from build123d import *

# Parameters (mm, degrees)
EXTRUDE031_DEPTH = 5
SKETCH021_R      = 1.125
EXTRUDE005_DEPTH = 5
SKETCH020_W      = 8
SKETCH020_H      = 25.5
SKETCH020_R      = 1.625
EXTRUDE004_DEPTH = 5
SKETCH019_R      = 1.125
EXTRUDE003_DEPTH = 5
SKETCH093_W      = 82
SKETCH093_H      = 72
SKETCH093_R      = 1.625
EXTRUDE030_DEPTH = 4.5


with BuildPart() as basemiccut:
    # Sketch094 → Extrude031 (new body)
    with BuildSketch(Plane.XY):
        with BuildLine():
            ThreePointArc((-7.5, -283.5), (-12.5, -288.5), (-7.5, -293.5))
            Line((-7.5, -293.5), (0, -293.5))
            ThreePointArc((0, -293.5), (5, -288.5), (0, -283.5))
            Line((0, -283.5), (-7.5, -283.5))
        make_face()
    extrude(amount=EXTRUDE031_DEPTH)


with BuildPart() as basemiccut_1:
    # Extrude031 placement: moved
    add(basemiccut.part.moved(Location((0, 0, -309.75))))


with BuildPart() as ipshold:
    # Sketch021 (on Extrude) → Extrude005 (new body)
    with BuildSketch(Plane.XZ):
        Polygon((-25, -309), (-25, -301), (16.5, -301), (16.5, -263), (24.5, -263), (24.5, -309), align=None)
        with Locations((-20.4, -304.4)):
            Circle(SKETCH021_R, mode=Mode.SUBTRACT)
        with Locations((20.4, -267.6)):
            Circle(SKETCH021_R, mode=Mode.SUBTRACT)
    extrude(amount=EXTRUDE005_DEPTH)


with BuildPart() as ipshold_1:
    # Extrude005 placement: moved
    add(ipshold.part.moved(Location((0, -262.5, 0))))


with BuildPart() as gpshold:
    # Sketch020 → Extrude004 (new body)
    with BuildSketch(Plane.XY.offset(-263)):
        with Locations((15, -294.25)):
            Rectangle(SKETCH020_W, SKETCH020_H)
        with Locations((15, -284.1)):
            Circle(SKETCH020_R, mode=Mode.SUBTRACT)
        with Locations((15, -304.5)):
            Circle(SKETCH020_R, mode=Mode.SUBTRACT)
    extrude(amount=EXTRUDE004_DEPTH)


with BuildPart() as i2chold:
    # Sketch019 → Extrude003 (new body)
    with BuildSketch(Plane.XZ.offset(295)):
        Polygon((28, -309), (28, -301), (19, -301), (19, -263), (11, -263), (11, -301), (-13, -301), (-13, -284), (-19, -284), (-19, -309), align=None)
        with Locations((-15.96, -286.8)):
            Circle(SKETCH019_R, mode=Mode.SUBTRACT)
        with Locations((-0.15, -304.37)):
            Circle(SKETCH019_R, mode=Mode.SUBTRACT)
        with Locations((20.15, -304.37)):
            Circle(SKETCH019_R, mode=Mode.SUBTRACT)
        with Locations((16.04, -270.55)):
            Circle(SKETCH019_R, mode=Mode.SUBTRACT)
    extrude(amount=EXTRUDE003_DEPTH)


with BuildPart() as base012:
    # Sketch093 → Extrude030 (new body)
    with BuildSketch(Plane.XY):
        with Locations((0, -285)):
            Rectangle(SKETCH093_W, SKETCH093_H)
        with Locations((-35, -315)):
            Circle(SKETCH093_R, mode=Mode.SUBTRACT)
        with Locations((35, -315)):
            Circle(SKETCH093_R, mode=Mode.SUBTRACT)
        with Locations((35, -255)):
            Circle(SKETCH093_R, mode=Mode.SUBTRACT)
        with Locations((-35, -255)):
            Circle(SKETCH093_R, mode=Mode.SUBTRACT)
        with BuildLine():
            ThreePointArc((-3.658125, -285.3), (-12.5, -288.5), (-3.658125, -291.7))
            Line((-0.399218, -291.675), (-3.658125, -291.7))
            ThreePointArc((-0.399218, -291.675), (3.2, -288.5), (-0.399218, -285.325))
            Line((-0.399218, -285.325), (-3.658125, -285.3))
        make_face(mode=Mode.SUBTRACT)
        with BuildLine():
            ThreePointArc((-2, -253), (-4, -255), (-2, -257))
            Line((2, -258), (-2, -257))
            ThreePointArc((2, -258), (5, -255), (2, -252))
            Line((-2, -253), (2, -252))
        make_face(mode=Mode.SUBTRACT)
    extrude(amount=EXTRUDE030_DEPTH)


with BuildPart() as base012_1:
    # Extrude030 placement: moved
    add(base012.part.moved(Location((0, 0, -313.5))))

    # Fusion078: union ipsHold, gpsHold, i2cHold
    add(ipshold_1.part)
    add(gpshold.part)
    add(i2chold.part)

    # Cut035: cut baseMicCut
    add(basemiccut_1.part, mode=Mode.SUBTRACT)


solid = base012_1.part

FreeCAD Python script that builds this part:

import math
import FreeCAD as App
import Part
import Sketcher
from FreeCAD import Vector

doc = App.newDocument("Part")
body = doc.addObject("PartDesign::Body", "Body")

sketch1 = doc.addObject("Sketcher::SketchObject", "Sketch")
body.addObject(sketch1)
sketch1.AttachmentSupport = (doc.XY_Plane, [""])
sketch1.MapMode = "FlatFace"
sketch1.addGeometry([
    Part.ArcOfCircle(Part.Circle(Vector(-7.5, -288.5, 0), Vector(0, 0, 1), 5), math.radians(90), math.radians(270)),
    Part.LineSegment(Vector(-7.5, -293.5, 0), Vector(0, -293.5, 0)),
    Part.ArcOfCircle(Part.Circle(Vector(0, -288.5, 0), Vector(0, 0, 1), 5), math.radians(-90), math.radians(90)),
    Part.LineSegment(Vector(0, -283.5, 0), Vector(-7.5, -283.5, 0)),
], False)
sketch1.addConstraint([
    Sketcher.Constraint("Tangent", 0, 2, 1, 1),
    Sketcher.Constraint("Tangent", 1, 2, 2, 1),
    Sketcher.Constraint("Tangent", 2, 2, 3, 1),
    Sketcher.Constraint("Tangent", 3, 2, 0, 1),
    Sketcher.Constraint("Horizontal", 1),
    Sketcher.Constraint("Horizontal", 3),
    Sketcher.Constraint("PointOnObject", 2, 3, -2),
    Sketcher.Constraint("Radius", 0, 5.0),
    Sketcher.Constraint("DistanceX", 1, 1, 1, 2, 7.5),
    Sketcher.Constraint("DistanceY", 0, 3, -1, 1, 288.5),
])
pad1 = doc.addObject("PartDesign::Pad", "Pad")
body.addObject(pad1)
pad1.Profile = sketch1
pad1.Length = 5
body2 = doc.addObject("PartDesign::Body", "Body001")
doc.recompute()

body.Placement = App.Placement(Vector(0, 0, -309.75), App.Rotation(Vector(0, 0, 1), 0))
boolean = doc.addObject("PartDesign::Boolean", "Boolean")
body2.addObject(boolean)
boolean.Type = "Fuse"
boolean.addObjects([body])
body3 = doc.addObject("PartDesign::Body", "Body002")

sketch2 = doc.addObject("Sketcher::SketchObject", "Sketch001")
body3.addObject(sketch2)
sketch2.AttachmentSupport = (doc.getObject("XZ_Plane002"), [""])
sketch2.MapMode = "FlatFace"
sketch2.addGeometry([
    Part.LineSegment(Vector(-25, -301, 0), Vector(-25, -309, 0)),
    Part.LineSegment(Vector(-25, -309, 0), Vector(24.5, -309, 0)),
    Part.LineSegment(Vector(24.5, -309, 0), Vector(24.5, -263, 0)),
    Part.LineSegment(Vector(24.5, -263, 0), Vector(16.5, -263, 0)),
    Part.LineSegment(Vector(16.5, -263, 0), Vector(16.5, -301, 0)),
    Part.LineSegment(Vector(16.5, -301, 0), Vector(-25, -301, 0)),
    Part.Circle(Vector(-20.4, -304.4, 0), Vector(0, 0, 1), 1.125),
    Part.Circle(Vector(20.4, -267.6, 0), Vector(0, 0, 1), 1.125),
], False)
sketch2.addConstraint([
    Sketcher.Constraint("Coincident", 0, 2, 1, 1),
    Sketcher.Constraint("Coincident", 1, 2, 2, 1),
    Sketcher.Constraint("Coincident", 2, 2, 3, 1),
    Sketcher.Constraint("Coincident", 3, 2, 4, 1),
    Sketcher.Constraint("Coincident", 4, 2, 5, 1),
    Sketcher.Constraint("Coincident", 5, 2, 0, 1),
    Sketcher.Constraint("Vertical", 0),
    Sketcher.Constraint("Horizontal", 1),
    Sketcher.Constraint("Vertical", 2),
    Sketcher.Constraint("Horizontal", 3),
    Sketcher.Constraint("Vertical", 4),
    Sketcher.Constraint("Horizontal", 5),
    Sketcher.Constraint("Equal", 6, 7),
    Sketcher.Constraint("Equal", 3, 0),
    Sketcher.Constraint("Diameter", 6, 2.25),
    Sketcher.Constraint("DistanceX", 3, 2, 3, 1, 8.0),
    Sketcher.Constraint("DistanceY", 2, 1, 2, 2, 46.0),
    Sketcher.Constraint("DistanceX", 1, 1, 1, 2, 49.5),
    Sketcher.Constraint("DistanceX", 0, 2, -1, 1, 25.0),
    Sketcher.Constraint("DistanceY", 0, 2, -1, 1, 309.0),
    Sketcher.Constraint("DistanceX", 6, 3, -1, 1, 20.4),
    Sketcher.Constraint("DistanceY", 6, 3, -1, 1, 304.4),
    Sketcher.Constraint("DistanceX", -1, 1, 7, 3, 20.4),
    Sketcher.Constraint("DistanceY", 7, 3, -1, 1, 267.6),
])
pad2 = doc.addObject("PartDesign::Pad", "Pad001")
body3.addObject(pad2)
pad2.Profile = sketch2
pad2.Length = 5
body4 = doc.addObject("PartDesign::Body", "Body003")
doc.recompute()

body3.Placement = App.Placement(Vector(0, -262.5, 0), App.Rotation(Vector(0, 0, 1), 0))
boolean2 = doc.addObject("PartDesign::Boolean", "Boolean001")
body4.addObject(boolean2)
boolean2.Type = "Fuse"
boolean2.addObjects([body3])
body5 = doc.addObject("PartDesign::Body", "Body004")

sketch3 = doc.addObject("Sketcher::SketchObject", "Sketch002")
body5.addObject(sketch3)
sketch3.AttachmentSupport = (doc.getObject("XY_Plane004"), [""])
sketch3.MapMode = "FlatFace"
sketch3.AttachmentOffset = App.Placement(Vector(0, 0, -263), App.Rotation())
sketch3.addGeometry([
    Part.LineSegment(Vector(11, -281.5, 0), Vector(11, -307, 0)),
    Part.LineSegment(Vector(11, -307, 0), Vector(19, -307, 0)),
    Part.LineSegment(Vector(19, -307, 0), Vector(19, -281.5, 0)),
    Part.LineSegment(Vector(19, -281.5, 0), Vector(11, -281.5, 0)),
    Part.Circle(Vector(15, -304.5, 0), Vector(0, 0, 1), 1.625),
    Part.Circle(Vector(15, -284.1, 0), Vector(0, 0, 1), 1.625),
], False)
sketch3.addConstraint([
    Sketcher.Constraint("Coincident", 0, 2, 1, 1),
    Sketcher.Constraint("Coincident", 1, 2, 2, 1),
    Sketcher.Constraint("Coincident", 2, 2, 3, 1),
    Sketcher.Constraint("Coincident", 3, 2, 0, 1),
    Sketcher.Constraint("Vertical", 0),
    Sketcher.Constraint("Horizontal", 1),
    Sketcher.Constraint("Vertical", 2),
    Sketcher.Constraint("Horizontal", 3),
    Sketcher.Constraint("Equal", 4, 5),
    Sketcher.Constraint("Vertical", 4, 3, 5, 3),
    Sketcher.Constraint("Diameter", 4, 3.25),
    Sketcher.Constraint("DistanceX", 1, 1, 1, 2, 8.0),
    Sketcher.Constraint("DistanceY", 0, 2, 0, 1, 25.5),
    Sketcher.Constraint("DistanceX", -1, 1, 4, 3, 15.0),
    Sketcher.Constraint("DistanceX", -1, 1, 0, 2, 11.0),
    Sketcher.Constraint("DistanceY", 0, 2, -1, 1, 307.0),
    Sketcher.Constraint("DistanceY", 4, 3, 2, 2, 23.0),
    Sketcher.Constraint("DistanceY", 5, 3, -1, 1, 284.1),
])
pad3 = doc.addObject("PartDesign::Pad", "Pad002")
body5.addObject(pad3)
pad3.Profile = sketch3
pad3.Length = 5
body6 = doc.addObject("PartDesign::Body", "Body005")

sketch4 = doc.addObject("Sketcher::SketchObject", "Sketch003")
body6.addObject(sketch4)
sketch4.AttachmentSupport = (doc.getObject("XZ_Plane005"), [""])
sketch4.MapMode = "FlatFace"
sketch4.AttachmentOffset = App.Placement(Vector(0, 0, 295), App.Rotation())
sketch4.addGeometry([
    Part.LineSegment(Vector(28, -309, 0), Vector(28, -301, 0)),
    Part.LineSegment(Vector(28, -301, 0), Vector(19, -301, 0)),
    Part.LineSegment(Vector(19, -301, 0), Vector(19, -263, 0)),
    Part.LineSegment(Vector(19, -263, 0), Vector(11, -263, 0)),
    Part.LineSegment(Vector(11, -263, 0), Vector(11, -301, 0)),
    Part.LineSegment(Vector(11, -301, 0), Vector(-13, -301, 0)),
    Part.LineSegment(Vector(-13, -301, 0), Vector(-13, -284, 0)),
    Part.LineSegment(Vector(-13, -284, 0), Vector(-19, -284, 0)),
    Part.LineSegment(Vector(-19, -284, 0), Vector(-19, -309, 0)),
    Part.LineSegment(Vector(-19, -309, 0), Vector(28, -309, 0)),
    Part.Circle(Vector(-0.15, -304.37, 0), Vector(0, 0, 1), 1.125),
    Part.Circle(Vector(20.15, -304.37, 0), Vector(0, 0, 1), 1.125),
    Part.Circle(Vector(-15.96, -286.8, 0), Vector(0, 0, 1), 1.125),
    Part.Circle(Vector(16.04, -270.55, 0), Vector(0, 0, 1), 1.125),
], False)
sketch4.addConstraint([
    Sketcher.Constraint("Coincident", 0, 2, 1, 1),
    Sketcher.Constraint("Coincident", 1, 2, 2, 1),
    Sketcher.Constraint("Coincident", 2, 2, 3, 1),
    Sketcher.Constraint("Coincident", 3, 2, 4, 1),
    Sketcher.Constraint("Coincident", 4, 2, 5, 1),
    Sketcher.Constraint("Coincident", 5, 2, 6, 1),
    Sketcher.Constraint("Coincident", 6, 2, 7, 1),
    Sketcher.Constraint("Coincident", 7, 2, 8, 1),
    Sketcher.Constraint("Coincident", 8, 2, 9, 1),
    Sketcher.Constraint("Coincident", 9, 2, 0, 1),
    Sketcher.Constraint("Vertical", 0),
    Sketcher.Constraint("Horizontal", 1),
    Sketcher.Constraint("Vertical", 2),
    Sketcher.Constraint("Horizontal", 3),
    Sketcher.Constraint("Vertical", 4),
    Sketcher.Constraint("Horizontal", 5),
    Sketcher.Constraint("Vertical", 6),
    Sketcher.Constraint("Horizontal", 7),
    Sketcher.Constraint("Vertical", 8),
    Sketcher.Constraint("Horizontal", 9),
    Sketcher.Constraint("Equal", 10, 11),
    Sketcher.Constraint("Equal", 11, 12),
    Sketcher.Constraint("Equal", 12, 13),
    Sketcher.Constraint("Horizontal", 10, 3, 11, 3),
    Sketcher.Constraint("Horizontal", 1, 2, 4, 2),
    Sketcher.Constraint("Equal", 3, 0),
    Sketcher.Constraint("Diameter", 10, 2.25),
    Sketcher.Constraint("DistanceX", 1, 2, 1, 1, 9.0),
    Sketcher.Constraint("DistanceX", 3, 2, 3, 1, 8.0),
    Sketcher.Constraint("DistanceX", 5, 2, 5, 1, 24.0),
    Sketcher.Constraint("DistanceX", 7, 2, 7, 1, 6.0),
    Sketcher.Constraint("DistanceY", 2, 1, 2, 2, 38.0),
    Sketcher.Constraint("DistanceY", 6, 1, 6, 2, 17.0),
    Sketcher.Constraint("DistanceX", -1, 1, 0, 2, 28.0),
    Sketcher.Constraint("DistanceY", 0, 2, -1, 1, 301.0),
    Sketcher.Constraint("DistanceX", 12, 3, 13, 3, 32.0),
    Sketcher.Constraint("DistanceY", 12, 3, -1, 1, 286.8),
    Sketcher.Constraint("DistanceX", 10, 3, 11, 3, 20.3),
    Sketcher.Constraint("DistanceX", 10, 3, -1, 1, 0.15),
    Sketcher.Constraint("DistanceY", 10, 3, -1, 1, 304.37),
    Sketcher.Constraint("DistanceX", 12, 3, -1, 1, 15.96),
    Sketcher.Constraint("DistanceY", 13, 3, -1, 1, 270.55),
])
pad4 = doc.addObject("PartDesign::Pad", "Pad003")
body6.addObject(pad4)
pad4.Profile = sketch4
pad4.Length = 5
body7 = doc.addObject("PartDesign::Body", "Body006")

sketch5 = doc.addObject("Sketcher::SketchObject", "Sketch004")
body7.addObject(sketch5)
sketch5.AttachmentSupport = (doc.getObject("XY_Plane006"), [""])
sketch5.MapMode = "FlatFace"
sketch5.addGeometry([
    Part.LineSegment(Vector(-41, -249, 0), Vector(-41, -321, 0)),
    Part.LineSegment(Vector(-41, -321, 0), Vector(41, -321, 0)),
    Part.LineSegment(Vector(41, -321, 0), Vector(41, -249, 0)),
    Part.LineSegment(Vector(41, -249, 0), Vector(-41, -249, 0)),
    Part.Circle(Vector(-35, -315, 0), Vector(0, 0, 1), 1.625),
    Part.ArcOfCircle(Part.Circle(Vector(-7.5, -288.5, 0), Vector(0, 0, 1), 5), math.radians(39.791818), math.radians(320.208182)),
    Part.LineSegment(Vector(-3.658125, -285.3, 0), Vector(-0.399218, -285.325, 0)),
    Part.ArcOfCircle(Part.Circle(Vector(0, -288.5, 0), Vector(0, 0, 1), 3.2), math.radians(-97.166644), math.radians(97.166644)),
    Part.LineSegment(Vector(-0.399218, -291.675, 0), Vector(-3.658125, -291.7, 0)),
    Part.Circle(Vector(35, -315, 0), Vector(0, 0, 1), 1.625),
    Part.Circle(Vector(-35, -255, 0), Vector(0, 0, 1), 1.625),
    Part.ArcOfCircle(Part.Circle(Vector(-2, -255, 0), Vector(0, 0, 1), 2), math.radians(90), math.radians(270)),
    Part.LineSegment(Vector(-2, -253, 0), Vector(2, -252, 0)),
    Part.ArcOfCircle(Part.Circle(Vector(2, -255, 0), Vector(0, 0, 1), 3), math.radians(-90), math.radians(90)),
    Part.LineSegment(Vector(2, -258, 0), Vector(-2, -257, 0)),
    Part.Circle(Vector(35, -255, 0), Vector(0, 0, 1), 1.625),
], False)
sketch5.addConstraint([
    Sketcher.Constraint("Coincident", 0, 2, 1, 1),
    Sketcher.Constraint("Coincident", 1, 2, 2, 1),
    Sketcher.Constraint("Coincident", 2, 2, 3, 1),
    Sketcher.Constraint("Coincident", 3, 2, 0, 1),
    Sketcher.Constraint("Coincident", 5, 1, 6, 1),
    Sketcher.Constraint("Coincident", 6, 2, 7, 2),
    Sketcher.Constraint("Coincident", 7, 1, 8, 1),
    Sketcher.Constraint("Coincident", 8, 2, 5, 2),
    Sketcher.Constraint("Coincident", 11, 1, 12, 1),
    Sketcher.Constraint("Coincident", 12, 2, 13, 2),
    Sketcher.Constraint("Coincident", 13, 1, 14, 1),
    Sketcher.Constraint("Coincident", 14, 2, 11, 2),
    Sketcher.Constraint("Vertical", 0),
    Sketcher.Constraint("Horizontal", 1),
    Sketcher.Constraint("Vertical", 2),
    Sketcher.Constraint("Horizontal", 3),
    Sketcher.Constraint("Equal", 4, 9),
    Sketcher.Constraint("Equal", 9, 10),
    Sketcher.Constraint("Equal", 10, 15),
    Sketcher.Constraint("Symmetric", 4, 3, 9, 3, -2),
    Sketcher.Constraint("Symmetric", 11, 3, 13, 3, -2),
    Sketcher.Constraint("Symmetric", 10, 3, 15, 3, -2),
    Sketcher.Constraint("PointOnObject", 7, 3, -2),
    Sketcher.Constraint("Horizontal", 5, 3, 7, 3),
    Sketcher.Constraint("Horizontal", 10, 3, 11, 3),
    Sketcher.Constraint("Vertical", 4, 3, 10, 3),
    Sketcher.Constraint("Vertical", 6, 2, 7, 1),
    Sketcher.Constraint("Vertical", 5, 1, 8, 2),
    Sketcher.Constraint("Vertical", 13, 3, 12, 2),
    Sketcher.Constraint("Vertical", 12, 2, 13, 1),
    Sketcher.Constraint("Vertical", 11, 1, 14, 2),
    Sketcher.Constraint("Radius", 5, 5.0),
    Sketcher.Constraint("Radius", 11, 2.0),
    Sketcher.Constraint("Radius", 13, 3.0),
    Sketcher.Constraint("Radius", 7, 3.2),
    Sketcher.Constraint("Diameter", 4, 3.25),
    Sketcher.Constraint("DistanceX", 1, 1, 1, 2, 82.0),
    Sketcher.Constraint("DistanceY", 0, 2, 0, 1, 72.0),
    Sketcher.Constraint("DistanceX", 4, 3, -1, 1, 35.0),
    Sketcher.Constraint("DistanceY", 4, 3, -1, 1, 315.0),
    Sketcher.Constraint("DistanceY", 10, 3, -1, 1, 255.0),
    Sketcher.Constraint("DistanceX", 11, 3, -1, 1, 2.0),
    Sketcher.Constraint("DistanceX", 0, 2, -1, 1, 41.0),
    Sketcher.Constraint("DistanceY", 0, 2, -1, 1, 321.0),
    Sketcher.Constraint("DistanceX", 11, 1, -1, 1, 2.0),
    Sketcher.Constraint("DistanceX", 5, 3, -1, 1, 7.5),
    Sketcher.Constraint("DistanceY", 5, 3, -1, 1, 288.5),
    Sketcher.Constraint("DistanceY", 5, 1, -1, 1, 285.3),
    Sketcher.Constraint("DistanceY", 7, 1, 6, 2, 6.35),
])
pad5 = doc.addObject("PartDesign::Pad", "Pad004")
body7.addObject(pad5)
pad5.Profile = sketch5
pad5.Length = 4.5
body8 = doc.addObject("PartDesign::Body", "Body007")
body8.AllowCompound = True
doc.recompute()

body7.Placement = App.Placement(Vector(0, 0, -313.5), App.Rotation(Vector(0, 0, 1), 0))
boolean3 = doc.addObject("PartDesign::Boolean", "Boolean002")
body8.addObject(boolean3)
boolean3.Type = "Fuse"
boolean3.addObjects([body7])
doc.recompute()

boolean4 = doc.addObject("PartDesign::Boolean", "Boolean003")
body8.addObject(boolean4)
boolean4.Type = "Fuse"
boolean4.addObjects([body4])
doc.recompute()

boolean5 = doc.addObject("PartDesign::Boolean", "Boolean004")
body8.addObject(boolean5)
boolean5.Type = "Fuse"
boolean5.addObjects([body5])
doc.recompute()

boolean6 = doc.addObject("PartDesign::Boolean", "Boolean005")
body8.addObject(boolean6)
boolean6.Type = "Fuse"
boolean6.addObjects([body6])
doc.recompute()

boolean7 = doc.addObject("PartDesign::Boolean", "Boolean006")
body8.addObject(boolean7)
boolean7.Type = "Cut"
boolean7.addObjects([body2])

doc.recompute()
